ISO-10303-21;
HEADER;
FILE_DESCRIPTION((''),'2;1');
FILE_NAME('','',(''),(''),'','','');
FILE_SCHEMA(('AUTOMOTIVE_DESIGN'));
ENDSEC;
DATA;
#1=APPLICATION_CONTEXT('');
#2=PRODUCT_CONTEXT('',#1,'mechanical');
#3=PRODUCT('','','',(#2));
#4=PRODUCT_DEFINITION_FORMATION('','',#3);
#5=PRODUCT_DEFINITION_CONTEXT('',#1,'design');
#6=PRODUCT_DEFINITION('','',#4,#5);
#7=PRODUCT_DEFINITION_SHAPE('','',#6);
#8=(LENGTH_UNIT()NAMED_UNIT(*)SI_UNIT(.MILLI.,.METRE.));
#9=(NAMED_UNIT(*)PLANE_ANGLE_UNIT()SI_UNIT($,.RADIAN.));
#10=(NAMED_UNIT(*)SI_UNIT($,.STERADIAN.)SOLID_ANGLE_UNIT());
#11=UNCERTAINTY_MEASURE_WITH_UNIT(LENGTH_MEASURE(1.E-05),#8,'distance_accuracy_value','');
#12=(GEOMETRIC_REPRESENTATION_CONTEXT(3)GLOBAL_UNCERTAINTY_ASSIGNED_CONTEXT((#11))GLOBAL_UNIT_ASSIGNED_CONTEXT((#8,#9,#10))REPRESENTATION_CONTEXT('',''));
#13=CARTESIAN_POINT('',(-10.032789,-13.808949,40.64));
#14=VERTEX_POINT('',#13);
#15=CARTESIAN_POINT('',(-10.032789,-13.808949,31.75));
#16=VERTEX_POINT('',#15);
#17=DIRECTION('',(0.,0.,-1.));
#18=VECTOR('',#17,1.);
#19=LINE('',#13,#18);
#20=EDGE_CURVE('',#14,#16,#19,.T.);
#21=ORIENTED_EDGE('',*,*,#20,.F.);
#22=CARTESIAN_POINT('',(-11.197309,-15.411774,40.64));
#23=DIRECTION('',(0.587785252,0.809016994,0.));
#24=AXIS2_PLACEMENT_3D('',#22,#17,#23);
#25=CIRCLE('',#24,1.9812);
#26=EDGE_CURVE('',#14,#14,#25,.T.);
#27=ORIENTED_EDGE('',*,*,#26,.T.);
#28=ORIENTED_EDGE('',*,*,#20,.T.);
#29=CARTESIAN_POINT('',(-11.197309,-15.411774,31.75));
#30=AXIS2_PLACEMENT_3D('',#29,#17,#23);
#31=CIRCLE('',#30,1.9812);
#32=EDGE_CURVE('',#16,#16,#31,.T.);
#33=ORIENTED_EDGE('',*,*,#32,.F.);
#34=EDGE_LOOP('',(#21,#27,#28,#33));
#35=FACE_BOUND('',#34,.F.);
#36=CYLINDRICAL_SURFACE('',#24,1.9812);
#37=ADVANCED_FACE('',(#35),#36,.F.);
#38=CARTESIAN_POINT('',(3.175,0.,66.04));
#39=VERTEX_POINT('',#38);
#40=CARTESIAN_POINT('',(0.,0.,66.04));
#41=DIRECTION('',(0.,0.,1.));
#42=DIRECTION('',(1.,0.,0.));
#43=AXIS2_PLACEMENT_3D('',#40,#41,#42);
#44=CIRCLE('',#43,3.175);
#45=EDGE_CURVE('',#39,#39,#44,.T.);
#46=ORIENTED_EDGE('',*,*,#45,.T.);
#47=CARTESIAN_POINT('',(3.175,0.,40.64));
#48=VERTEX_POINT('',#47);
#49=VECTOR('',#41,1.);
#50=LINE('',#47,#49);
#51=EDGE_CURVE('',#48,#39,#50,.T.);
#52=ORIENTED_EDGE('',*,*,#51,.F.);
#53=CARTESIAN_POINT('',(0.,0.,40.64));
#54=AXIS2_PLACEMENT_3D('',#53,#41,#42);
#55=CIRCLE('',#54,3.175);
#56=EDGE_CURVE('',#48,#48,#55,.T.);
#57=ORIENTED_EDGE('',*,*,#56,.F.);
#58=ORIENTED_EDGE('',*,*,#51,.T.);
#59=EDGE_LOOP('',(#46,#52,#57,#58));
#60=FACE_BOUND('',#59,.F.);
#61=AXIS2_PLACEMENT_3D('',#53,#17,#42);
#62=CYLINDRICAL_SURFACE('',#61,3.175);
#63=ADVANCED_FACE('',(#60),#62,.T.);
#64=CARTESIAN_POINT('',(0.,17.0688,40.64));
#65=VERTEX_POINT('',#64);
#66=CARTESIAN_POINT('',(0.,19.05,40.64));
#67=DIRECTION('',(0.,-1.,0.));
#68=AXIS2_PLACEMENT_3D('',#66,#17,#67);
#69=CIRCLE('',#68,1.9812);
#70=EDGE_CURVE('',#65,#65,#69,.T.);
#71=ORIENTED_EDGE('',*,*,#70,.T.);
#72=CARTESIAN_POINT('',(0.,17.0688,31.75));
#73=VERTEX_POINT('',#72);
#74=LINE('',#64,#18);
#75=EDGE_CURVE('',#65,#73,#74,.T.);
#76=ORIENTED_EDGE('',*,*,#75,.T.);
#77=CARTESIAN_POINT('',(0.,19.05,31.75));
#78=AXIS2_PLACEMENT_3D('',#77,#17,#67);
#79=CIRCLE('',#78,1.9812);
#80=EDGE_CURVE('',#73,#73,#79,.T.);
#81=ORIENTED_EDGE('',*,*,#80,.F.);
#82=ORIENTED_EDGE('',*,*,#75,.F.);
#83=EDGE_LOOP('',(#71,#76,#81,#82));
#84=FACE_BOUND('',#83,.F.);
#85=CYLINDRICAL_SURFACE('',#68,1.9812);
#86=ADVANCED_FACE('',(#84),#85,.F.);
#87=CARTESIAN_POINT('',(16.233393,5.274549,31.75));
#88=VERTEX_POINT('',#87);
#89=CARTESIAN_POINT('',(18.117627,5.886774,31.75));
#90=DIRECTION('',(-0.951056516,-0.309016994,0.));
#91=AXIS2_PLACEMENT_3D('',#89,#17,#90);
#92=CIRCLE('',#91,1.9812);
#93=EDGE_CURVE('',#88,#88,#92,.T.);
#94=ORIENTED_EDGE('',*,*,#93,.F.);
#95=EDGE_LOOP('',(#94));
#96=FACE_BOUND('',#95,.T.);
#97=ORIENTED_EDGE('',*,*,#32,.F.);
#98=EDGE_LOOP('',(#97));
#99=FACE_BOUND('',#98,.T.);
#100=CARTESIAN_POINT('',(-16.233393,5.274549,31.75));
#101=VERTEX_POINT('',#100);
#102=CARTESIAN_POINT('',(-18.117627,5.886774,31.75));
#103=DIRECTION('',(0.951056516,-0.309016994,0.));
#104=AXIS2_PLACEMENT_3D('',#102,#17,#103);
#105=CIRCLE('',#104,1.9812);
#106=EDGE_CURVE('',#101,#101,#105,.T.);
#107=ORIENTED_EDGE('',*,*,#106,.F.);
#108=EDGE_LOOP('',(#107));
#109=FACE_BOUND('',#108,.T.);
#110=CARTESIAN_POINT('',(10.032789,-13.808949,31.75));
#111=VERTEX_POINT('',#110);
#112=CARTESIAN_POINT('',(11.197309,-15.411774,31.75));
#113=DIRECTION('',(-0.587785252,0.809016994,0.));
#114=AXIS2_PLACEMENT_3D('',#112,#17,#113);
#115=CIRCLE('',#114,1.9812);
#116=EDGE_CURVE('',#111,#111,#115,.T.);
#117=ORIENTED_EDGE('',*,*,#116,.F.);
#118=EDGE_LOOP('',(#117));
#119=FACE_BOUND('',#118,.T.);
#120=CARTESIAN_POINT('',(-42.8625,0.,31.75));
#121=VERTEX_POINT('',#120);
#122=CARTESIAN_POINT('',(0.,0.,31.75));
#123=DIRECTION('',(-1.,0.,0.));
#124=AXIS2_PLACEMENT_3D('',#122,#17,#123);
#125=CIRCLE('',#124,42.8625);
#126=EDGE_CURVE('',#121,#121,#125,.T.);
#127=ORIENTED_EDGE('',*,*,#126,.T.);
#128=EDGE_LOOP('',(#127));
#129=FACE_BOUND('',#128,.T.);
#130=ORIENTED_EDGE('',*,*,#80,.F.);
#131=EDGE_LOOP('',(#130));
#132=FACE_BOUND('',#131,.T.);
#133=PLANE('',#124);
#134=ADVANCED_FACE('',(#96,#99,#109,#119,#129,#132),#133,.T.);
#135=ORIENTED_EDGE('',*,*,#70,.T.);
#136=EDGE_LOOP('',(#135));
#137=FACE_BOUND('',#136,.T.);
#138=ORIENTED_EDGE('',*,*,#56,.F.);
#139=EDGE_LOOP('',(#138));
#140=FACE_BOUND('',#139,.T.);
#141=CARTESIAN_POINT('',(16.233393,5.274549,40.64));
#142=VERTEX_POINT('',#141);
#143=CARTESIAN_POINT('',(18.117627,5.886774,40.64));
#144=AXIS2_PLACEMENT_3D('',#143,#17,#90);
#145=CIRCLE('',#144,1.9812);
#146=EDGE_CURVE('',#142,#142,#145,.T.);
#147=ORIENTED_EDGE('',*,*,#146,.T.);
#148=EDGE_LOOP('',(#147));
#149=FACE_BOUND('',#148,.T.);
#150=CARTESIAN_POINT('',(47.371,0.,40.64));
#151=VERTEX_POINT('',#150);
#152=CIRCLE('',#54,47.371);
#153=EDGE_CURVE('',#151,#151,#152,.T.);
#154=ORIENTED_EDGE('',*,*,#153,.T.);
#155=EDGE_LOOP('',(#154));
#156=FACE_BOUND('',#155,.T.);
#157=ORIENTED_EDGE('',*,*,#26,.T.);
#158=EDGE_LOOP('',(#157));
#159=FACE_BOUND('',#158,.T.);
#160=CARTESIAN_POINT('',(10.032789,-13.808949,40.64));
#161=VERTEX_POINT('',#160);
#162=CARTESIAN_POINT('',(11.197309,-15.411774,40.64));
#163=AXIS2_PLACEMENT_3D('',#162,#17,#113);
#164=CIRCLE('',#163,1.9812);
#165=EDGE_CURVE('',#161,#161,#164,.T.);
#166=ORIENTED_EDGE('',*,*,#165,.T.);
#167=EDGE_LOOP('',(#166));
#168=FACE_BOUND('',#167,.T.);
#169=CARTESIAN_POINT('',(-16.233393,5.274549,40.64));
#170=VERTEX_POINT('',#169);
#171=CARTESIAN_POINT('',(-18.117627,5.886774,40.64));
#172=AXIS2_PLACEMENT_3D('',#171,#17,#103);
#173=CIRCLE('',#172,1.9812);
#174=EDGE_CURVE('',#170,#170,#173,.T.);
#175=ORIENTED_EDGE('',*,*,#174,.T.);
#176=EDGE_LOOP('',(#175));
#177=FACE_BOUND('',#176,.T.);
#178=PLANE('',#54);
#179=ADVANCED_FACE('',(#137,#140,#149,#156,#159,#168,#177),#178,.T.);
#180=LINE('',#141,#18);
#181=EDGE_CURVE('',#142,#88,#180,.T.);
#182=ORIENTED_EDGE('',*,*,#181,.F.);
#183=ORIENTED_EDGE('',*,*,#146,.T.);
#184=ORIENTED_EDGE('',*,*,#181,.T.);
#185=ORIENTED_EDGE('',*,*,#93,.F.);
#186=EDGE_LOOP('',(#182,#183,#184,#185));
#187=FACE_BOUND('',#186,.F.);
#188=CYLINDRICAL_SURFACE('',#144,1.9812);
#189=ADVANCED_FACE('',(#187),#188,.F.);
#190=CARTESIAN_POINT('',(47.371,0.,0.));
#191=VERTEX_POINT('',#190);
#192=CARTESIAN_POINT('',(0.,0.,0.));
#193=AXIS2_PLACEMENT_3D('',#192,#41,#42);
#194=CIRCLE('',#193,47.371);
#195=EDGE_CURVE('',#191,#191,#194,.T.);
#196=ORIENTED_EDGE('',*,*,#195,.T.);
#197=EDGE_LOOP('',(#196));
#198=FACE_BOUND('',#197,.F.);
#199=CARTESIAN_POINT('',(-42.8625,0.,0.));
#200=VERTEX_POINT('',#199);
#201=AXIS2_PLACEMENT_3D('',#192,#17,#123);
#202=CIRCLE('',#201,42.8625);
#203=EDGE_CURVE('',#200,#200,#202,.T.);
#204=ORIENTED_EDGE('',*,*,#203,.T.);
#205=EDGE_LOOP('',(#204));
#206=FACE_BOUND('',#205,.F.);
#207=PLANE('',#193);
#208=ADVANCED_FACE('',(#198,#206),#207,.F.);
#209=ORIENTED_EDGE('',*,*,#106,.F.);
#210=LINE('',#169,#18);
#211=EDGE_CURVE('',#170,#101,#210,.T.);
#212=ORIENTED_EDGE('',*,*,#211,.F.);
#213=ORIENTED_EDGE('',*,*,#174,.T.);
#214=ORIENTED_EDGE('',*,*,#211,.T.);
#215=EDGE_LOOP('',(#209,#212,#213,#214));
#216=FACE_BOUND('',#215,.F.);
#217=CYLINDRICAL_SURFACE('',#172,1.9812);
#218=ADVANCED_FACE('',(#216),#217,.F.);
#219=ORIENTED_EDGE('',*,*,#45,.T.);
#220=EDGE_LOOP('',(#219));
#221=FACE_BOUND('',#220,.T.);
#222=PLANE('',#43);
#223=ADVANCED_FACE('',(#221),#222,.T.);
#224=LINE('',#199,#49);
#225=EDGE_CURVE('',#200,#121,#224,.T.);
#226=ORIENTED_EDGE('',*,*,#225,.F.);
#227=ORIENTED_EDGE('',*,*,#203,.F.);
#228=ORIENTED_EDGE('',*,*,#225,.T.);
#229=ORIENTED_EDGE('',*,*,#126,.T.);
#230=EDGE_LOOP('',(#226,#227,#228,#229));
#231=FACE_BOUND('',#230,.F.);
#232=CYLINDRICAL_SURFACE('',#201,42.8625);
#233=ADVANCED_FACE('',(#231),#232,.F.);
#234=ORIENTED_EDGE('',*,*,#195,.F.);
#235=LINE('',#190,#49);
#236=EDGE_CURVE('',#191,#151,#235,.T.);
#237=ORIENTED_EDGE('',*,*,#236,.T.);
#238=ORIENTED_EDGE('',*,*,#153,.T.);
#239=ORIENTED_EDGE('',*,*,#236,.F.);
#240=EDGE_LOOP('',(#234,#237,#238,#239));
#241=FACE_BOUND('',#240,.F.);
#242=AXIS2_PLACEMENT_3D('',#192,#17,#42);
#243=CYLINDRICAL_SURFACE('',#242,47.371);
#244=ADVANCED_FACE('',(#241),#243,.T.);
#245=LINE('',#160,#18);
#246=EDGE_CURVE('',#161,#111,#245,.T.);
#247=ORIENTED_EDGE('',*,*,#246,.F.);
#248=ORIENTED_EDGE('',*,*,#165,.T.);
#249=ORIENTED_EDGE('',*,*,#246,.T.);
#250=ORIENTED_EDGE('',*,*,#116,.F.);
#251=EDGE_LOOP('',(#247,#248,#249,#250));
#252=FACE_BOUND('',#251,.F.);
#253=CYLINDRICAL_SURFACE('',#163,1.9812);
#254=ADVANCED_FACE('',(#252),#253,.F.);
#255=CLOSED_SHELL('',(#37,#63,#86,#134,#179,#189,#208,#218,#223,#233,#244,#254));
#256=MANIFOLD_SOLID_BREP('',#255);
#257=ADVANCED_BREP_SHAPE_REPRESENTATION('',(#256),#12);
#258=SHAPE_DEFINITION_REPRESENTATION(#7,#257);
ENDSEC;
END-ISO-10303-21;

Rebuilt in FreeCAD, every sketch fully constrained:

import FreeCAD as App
import Part
import Sketcher
Q = App.Units.Quantity

doc = App.newDocument("Part")
body = doc.addObject("PartDesign::Body", "Body")

sketch1 = body.newObject("Sketcher::SketchObject", "Sketch")
sketch1.AttachmentSupport = (doc.getObject("XY_Plane"), [""])
sketch1.MapMode = "FlatFace"
sketch1.addGeometry(Part.Circle(App.Vector(0, 0, 0), App.Vector(0, 0, 1), 47.371), False)
sketch1.addConstraint(Sketcher.Constraint("Coincident", 0, 3, -1, 1))
sketch1.addConstraint(Sketcher.Constraint("Diameter", 0, Q("3.73 in")))
pad1 = body.newObject("PartDesign::Pad", "Pad")
pad1.Profile = sketch1
pad1.Length = Q("1.6 in")

sketch2 = body.newObject("Sketcher::SketchObject", "Sketch001")
sketch2.AttachmentSupport = (doc.getObject("XY_Plane"), [""])
sketch2.MapMode = "FlatFace"
sketch2.addGeometry(Part.Circle(App.Vector(0, 0, 0), App.Vector(0, 0, 1), 42.8625), False)
sketch2.addConstraint(Sketcher.Constraint("Coincident", 0, 3, -1, 1))
sketch2.addConstraint(Sketcher.Constraint("Diameter", 0, Q("3.375 in")))
pocket1 = body.newObject("PartDesign::Pocket", "Pocket")
pocket1.Profile = sketch2
pocket1.Length = Q("1.25 in")
pocket1.Reversed = True

sketch3 = body.newObject("Sketcher::SketchObject", "Sketch002")
sketch3.AttachmentSupport = (doc.getObject("XY_Plane"), [""])
sketch3.MapMode = "FlatFace"
sketch3.AttachmentOffset = App.Placement(App.Vector(0, 0, 1.6 * 25.4), App.Rotation())
sketch3.addGeometry(Part.Circle(App.Vector(0, 19.05, 0), App.Vector(0, 0, 1), 1.9812), False)
sketch3.addConstraint(Sketcher.Constraint("PointOnObject", 0, 3, -2))
sketch3.addConstraint(Sketcher.Constraint("Diameter", 0, Q("0.156 in")))
sketch3.addConstraint(Sketcher.Constraint("DistanceY", -1, 1, 0, 3, Q("0.75 in")))
doc.recompute()
hole = body.newObject("PartDesign::Hole", "Hole")
hole.Profile = sketch3
hole.ThreadType = "None"
hole.Diameter = Q("0.156 in")
hole.DepthType = "Dimension"
hole.Depth = Q("1 in")
hole.DrillPoint = "Angled"
hole.DrillPointAngle = 118
doc.recompute()

polarpattern = body.newObject("PartDesign::PolarPattern", "PolarPattern")
polarpattern.Originals = [hole]
polarpattern.Axis = (doc.getObject("Z_Axis"), [""])
polarpattern.Angle = 360
polarpattern.Occurrences = 5
body.Tip = polarpattern

sketch4 = body.newObject("Sketcher::SketchObject", "Sketch003")
sketch4.AttachmentSupport = (doc.getObject("XY_Plane"), [""])
sketch4.MapMode = "FlatFace"
sketch4.AttachmentOffset = App.Placement(App.Vector(0, 0, 1.6 * 25.4), App.Rotation())
sketch4.addGeometry(Part.Circle(App.Vector(0, 0, 0), App.Vector(0, 0, 1), 3.175), False)
sketch4.addConstraint(Sketcher.Constraint("Coincident", 0, 3, -1, 1))
sketch4.addConstraint(Sketcher.Constraint("Diameter", 0, Q("0.25 in")))
pad2 = body.newObject("PartDesign::Pad", "Pad001")
pad2.Profile = sketch4
pad2.Length = Q("1 in")

doc.recompute()
